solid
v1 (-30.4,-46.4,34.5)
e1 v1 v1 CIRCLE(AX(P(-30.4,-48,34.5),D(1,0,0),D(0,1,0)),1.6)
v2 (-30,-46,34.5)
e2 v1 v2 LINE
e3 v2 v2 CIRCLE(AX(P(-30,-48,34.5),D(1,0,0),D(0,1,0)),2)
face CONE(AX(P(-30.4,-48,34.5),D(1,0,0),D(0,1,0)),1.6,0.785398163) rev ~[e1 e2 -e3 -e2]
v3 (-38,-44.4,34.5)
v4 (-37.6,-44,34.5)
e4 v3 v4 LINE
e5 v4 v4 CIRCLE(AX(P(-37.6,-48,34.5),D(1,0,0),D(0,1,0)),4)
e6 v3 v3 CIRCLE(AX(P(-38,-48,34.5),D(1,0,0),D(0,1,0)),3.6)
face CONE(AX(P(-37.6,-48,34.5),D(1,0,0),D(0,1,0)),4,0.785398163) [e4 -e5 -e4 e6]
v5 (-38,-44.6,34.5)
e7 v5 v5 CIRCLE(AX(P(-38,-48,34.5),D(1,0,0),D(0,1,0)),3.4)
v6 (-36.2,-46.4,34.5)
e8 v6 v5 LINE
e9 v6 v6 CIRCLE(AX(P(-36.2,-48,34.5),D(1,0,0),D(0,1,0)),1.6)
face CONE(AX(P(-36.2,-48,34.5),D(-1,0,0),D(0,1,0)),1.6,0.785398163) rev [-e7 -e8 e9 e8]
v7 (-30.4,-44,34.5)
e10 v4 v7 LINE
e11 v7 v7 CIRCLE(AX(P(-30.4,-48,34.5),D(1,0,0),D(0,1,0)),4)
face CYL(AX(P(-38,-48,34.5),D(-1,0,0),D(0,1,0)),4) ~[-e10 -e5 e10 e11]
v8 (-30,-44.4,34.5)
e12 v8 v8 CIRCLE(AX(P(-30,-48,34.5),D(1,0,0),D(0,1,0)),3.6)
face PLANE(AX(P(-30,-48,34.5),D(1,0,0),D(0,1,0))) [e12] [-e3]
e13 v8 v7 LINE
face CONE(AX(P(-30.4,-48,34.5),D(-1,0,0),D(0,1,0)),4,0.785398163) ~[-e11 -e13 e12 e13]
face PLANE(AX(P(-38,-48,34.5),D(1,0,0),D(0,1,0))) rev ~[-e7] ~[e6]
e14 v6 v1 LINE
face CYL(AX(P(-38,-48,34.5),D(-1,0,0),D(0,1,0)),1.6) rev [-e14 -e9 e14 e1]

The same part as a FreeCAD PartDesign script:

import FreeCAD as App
import Part
import Sketcher
Q = App.Units.Quantity


def edges_at(feature, points):
    """Names of the edges that pass closest to the given points."""
    edges = feature.Shape.Edges
    near = lambda p: min(range(len(edges)), key=lambda i: edges[i].distToShape(Part.Vertex(*p))[0])
    return sorted({f"Edge{near(p) + 1}" for p in points})

doc = App.newDocument("Part")
body = doc.addObject("PartDesign::Body", "Body")

sketch1 = body.newObject("Sketcher::SketchObject", "Sketch")
sketch1.AttachmentSupport = (doc.getObject("YZ_Plane"), [""])
sketch1.MapMode = "FlatFace"
sketch1.addGeometry([
    Part.Circle(App.Vector(0, 0, 0), App.Vector(0, 0, 1), 4),
    Part.Circle(App.Vector(0, 0, 0), App.Vector(0, 0, 1), 1.6),
], False)
sketch1.addConstraint([
    Sketcher.Constraint("Coincident", 0, 3, -1, 1),
    Sketcher.Constraint("Coincident", 1, 3, -1, 1),
    Sketcher.Constraint("Diameter", 0, Q("8 mm")),
    Sketcher.Constraint("Diameter", 1, Q("3.2 mm")),
])
pad1 = body.newObject("PartDesign::Pad", "Pad")
pad1.Profile = sketch1
pad1.Length = 8
doc.recompute()

chamfer = body.newObject("PartDesign::Chamfer", "Chamfer")
chamfer.Base = (pad1, edges_at(pad1, [(0, -1.6, 0)]))
chamfer.Size = 1.8
doc.recompute()

chamfer2 = body.newObject("PartDesign::Chamfer", "Chamfer001")
chamfer2.Base = (chamfer, edges_at(chamfer, [(0, -4, 0), (8, -4, 0), (8, -1.6, 0)]))
chamfer2.Size = 0.4
body2 = doc.addObject("PartDesign::Body", "Body001")
doc.recompute()

body.Placement = App.Placement(App.Vector(-38, -48, 34.5), App.Rotation(App.Vector(0, 0, 1), 0))
boolean = body2.newObject("PartDesign::Boolean", "Boolean")
boolean.Type = "Fuse"
boolean.addObjects([body])

doc.recompute()
